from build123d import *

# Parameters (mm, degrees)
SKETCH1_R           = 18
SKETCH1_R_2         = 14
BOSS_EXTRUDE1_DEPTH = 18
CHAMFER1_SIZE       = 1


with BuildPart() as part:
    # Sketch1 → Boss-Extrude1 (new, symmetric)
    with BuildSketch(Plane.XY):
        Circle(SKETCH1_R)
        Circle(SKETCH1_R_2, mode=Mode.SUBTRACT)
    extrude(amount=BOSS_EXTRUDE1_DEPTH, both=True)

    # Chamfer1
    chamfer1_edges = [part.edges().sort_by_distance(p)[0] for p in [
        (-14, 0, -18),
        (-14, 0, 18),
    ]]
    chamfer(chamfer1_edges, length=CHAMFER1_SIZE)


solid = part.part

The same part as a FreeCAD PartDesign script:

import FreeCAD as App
import Part
import Sketcher

V = App.Vector


def edges_at(feature, points):
    """Names of the edges that pass closest to the given points."""
    edges = feature.Shape.Edges
    near = lambda p: min(range(len(edges)), key=lambda i: edges[i].distToShape(Part.Vertex(*p))[0])
    return sorted({f"Edge{near(p) + 1}" for p in points})

doc = App.newDocument("Part")
body = doc.addObject("PartDesign::Body", "Body")

# Sketch on XY plane
sketch1 = body.newObject("Sketcher::SketchObject", "Sketch")
sketch1.AttachmentSupport = (doc.getObject("XY_Plane"), [""])
sketch1.MapMode = "FlatFace"
sketch1.addGeometry(Part.Circle(V(0, 0, 0), V(0, 0, 1), 18), False)
sketch1.addGeometry(Part.Circle(V(0, 0, 0), V(0, 0, 1), 14), False)
sketch1.addConstraint(Sketcher.Constraint("Coincident", 0, 3, -1, 1))
sketch1.addConstraint(Sketcher.Constraint("Coincident", 1, 3, -1, 1))
sketch1.addConstraint(Sketcher.Constraint("Diameter", 0, 36.0))
sketch1.addConstraint(Sketcher.Constraint("Diameter", 1, 28.0))
pad1 = body.newObject("PartDesign::Pad", "Pad")
pad1.Profile = sketch1
pad1.Length = 36
pad1.Midplane = True
doc.recompute()

chamfer = body.newObject("PartDesign::Chamfer", "Chamfer")
chamfer.Base = (pad1, edges_at(pad1, [(-14, 0, -18), (-14, 0, 18)]))
chamfer.Size = 1

doc.recompute()
